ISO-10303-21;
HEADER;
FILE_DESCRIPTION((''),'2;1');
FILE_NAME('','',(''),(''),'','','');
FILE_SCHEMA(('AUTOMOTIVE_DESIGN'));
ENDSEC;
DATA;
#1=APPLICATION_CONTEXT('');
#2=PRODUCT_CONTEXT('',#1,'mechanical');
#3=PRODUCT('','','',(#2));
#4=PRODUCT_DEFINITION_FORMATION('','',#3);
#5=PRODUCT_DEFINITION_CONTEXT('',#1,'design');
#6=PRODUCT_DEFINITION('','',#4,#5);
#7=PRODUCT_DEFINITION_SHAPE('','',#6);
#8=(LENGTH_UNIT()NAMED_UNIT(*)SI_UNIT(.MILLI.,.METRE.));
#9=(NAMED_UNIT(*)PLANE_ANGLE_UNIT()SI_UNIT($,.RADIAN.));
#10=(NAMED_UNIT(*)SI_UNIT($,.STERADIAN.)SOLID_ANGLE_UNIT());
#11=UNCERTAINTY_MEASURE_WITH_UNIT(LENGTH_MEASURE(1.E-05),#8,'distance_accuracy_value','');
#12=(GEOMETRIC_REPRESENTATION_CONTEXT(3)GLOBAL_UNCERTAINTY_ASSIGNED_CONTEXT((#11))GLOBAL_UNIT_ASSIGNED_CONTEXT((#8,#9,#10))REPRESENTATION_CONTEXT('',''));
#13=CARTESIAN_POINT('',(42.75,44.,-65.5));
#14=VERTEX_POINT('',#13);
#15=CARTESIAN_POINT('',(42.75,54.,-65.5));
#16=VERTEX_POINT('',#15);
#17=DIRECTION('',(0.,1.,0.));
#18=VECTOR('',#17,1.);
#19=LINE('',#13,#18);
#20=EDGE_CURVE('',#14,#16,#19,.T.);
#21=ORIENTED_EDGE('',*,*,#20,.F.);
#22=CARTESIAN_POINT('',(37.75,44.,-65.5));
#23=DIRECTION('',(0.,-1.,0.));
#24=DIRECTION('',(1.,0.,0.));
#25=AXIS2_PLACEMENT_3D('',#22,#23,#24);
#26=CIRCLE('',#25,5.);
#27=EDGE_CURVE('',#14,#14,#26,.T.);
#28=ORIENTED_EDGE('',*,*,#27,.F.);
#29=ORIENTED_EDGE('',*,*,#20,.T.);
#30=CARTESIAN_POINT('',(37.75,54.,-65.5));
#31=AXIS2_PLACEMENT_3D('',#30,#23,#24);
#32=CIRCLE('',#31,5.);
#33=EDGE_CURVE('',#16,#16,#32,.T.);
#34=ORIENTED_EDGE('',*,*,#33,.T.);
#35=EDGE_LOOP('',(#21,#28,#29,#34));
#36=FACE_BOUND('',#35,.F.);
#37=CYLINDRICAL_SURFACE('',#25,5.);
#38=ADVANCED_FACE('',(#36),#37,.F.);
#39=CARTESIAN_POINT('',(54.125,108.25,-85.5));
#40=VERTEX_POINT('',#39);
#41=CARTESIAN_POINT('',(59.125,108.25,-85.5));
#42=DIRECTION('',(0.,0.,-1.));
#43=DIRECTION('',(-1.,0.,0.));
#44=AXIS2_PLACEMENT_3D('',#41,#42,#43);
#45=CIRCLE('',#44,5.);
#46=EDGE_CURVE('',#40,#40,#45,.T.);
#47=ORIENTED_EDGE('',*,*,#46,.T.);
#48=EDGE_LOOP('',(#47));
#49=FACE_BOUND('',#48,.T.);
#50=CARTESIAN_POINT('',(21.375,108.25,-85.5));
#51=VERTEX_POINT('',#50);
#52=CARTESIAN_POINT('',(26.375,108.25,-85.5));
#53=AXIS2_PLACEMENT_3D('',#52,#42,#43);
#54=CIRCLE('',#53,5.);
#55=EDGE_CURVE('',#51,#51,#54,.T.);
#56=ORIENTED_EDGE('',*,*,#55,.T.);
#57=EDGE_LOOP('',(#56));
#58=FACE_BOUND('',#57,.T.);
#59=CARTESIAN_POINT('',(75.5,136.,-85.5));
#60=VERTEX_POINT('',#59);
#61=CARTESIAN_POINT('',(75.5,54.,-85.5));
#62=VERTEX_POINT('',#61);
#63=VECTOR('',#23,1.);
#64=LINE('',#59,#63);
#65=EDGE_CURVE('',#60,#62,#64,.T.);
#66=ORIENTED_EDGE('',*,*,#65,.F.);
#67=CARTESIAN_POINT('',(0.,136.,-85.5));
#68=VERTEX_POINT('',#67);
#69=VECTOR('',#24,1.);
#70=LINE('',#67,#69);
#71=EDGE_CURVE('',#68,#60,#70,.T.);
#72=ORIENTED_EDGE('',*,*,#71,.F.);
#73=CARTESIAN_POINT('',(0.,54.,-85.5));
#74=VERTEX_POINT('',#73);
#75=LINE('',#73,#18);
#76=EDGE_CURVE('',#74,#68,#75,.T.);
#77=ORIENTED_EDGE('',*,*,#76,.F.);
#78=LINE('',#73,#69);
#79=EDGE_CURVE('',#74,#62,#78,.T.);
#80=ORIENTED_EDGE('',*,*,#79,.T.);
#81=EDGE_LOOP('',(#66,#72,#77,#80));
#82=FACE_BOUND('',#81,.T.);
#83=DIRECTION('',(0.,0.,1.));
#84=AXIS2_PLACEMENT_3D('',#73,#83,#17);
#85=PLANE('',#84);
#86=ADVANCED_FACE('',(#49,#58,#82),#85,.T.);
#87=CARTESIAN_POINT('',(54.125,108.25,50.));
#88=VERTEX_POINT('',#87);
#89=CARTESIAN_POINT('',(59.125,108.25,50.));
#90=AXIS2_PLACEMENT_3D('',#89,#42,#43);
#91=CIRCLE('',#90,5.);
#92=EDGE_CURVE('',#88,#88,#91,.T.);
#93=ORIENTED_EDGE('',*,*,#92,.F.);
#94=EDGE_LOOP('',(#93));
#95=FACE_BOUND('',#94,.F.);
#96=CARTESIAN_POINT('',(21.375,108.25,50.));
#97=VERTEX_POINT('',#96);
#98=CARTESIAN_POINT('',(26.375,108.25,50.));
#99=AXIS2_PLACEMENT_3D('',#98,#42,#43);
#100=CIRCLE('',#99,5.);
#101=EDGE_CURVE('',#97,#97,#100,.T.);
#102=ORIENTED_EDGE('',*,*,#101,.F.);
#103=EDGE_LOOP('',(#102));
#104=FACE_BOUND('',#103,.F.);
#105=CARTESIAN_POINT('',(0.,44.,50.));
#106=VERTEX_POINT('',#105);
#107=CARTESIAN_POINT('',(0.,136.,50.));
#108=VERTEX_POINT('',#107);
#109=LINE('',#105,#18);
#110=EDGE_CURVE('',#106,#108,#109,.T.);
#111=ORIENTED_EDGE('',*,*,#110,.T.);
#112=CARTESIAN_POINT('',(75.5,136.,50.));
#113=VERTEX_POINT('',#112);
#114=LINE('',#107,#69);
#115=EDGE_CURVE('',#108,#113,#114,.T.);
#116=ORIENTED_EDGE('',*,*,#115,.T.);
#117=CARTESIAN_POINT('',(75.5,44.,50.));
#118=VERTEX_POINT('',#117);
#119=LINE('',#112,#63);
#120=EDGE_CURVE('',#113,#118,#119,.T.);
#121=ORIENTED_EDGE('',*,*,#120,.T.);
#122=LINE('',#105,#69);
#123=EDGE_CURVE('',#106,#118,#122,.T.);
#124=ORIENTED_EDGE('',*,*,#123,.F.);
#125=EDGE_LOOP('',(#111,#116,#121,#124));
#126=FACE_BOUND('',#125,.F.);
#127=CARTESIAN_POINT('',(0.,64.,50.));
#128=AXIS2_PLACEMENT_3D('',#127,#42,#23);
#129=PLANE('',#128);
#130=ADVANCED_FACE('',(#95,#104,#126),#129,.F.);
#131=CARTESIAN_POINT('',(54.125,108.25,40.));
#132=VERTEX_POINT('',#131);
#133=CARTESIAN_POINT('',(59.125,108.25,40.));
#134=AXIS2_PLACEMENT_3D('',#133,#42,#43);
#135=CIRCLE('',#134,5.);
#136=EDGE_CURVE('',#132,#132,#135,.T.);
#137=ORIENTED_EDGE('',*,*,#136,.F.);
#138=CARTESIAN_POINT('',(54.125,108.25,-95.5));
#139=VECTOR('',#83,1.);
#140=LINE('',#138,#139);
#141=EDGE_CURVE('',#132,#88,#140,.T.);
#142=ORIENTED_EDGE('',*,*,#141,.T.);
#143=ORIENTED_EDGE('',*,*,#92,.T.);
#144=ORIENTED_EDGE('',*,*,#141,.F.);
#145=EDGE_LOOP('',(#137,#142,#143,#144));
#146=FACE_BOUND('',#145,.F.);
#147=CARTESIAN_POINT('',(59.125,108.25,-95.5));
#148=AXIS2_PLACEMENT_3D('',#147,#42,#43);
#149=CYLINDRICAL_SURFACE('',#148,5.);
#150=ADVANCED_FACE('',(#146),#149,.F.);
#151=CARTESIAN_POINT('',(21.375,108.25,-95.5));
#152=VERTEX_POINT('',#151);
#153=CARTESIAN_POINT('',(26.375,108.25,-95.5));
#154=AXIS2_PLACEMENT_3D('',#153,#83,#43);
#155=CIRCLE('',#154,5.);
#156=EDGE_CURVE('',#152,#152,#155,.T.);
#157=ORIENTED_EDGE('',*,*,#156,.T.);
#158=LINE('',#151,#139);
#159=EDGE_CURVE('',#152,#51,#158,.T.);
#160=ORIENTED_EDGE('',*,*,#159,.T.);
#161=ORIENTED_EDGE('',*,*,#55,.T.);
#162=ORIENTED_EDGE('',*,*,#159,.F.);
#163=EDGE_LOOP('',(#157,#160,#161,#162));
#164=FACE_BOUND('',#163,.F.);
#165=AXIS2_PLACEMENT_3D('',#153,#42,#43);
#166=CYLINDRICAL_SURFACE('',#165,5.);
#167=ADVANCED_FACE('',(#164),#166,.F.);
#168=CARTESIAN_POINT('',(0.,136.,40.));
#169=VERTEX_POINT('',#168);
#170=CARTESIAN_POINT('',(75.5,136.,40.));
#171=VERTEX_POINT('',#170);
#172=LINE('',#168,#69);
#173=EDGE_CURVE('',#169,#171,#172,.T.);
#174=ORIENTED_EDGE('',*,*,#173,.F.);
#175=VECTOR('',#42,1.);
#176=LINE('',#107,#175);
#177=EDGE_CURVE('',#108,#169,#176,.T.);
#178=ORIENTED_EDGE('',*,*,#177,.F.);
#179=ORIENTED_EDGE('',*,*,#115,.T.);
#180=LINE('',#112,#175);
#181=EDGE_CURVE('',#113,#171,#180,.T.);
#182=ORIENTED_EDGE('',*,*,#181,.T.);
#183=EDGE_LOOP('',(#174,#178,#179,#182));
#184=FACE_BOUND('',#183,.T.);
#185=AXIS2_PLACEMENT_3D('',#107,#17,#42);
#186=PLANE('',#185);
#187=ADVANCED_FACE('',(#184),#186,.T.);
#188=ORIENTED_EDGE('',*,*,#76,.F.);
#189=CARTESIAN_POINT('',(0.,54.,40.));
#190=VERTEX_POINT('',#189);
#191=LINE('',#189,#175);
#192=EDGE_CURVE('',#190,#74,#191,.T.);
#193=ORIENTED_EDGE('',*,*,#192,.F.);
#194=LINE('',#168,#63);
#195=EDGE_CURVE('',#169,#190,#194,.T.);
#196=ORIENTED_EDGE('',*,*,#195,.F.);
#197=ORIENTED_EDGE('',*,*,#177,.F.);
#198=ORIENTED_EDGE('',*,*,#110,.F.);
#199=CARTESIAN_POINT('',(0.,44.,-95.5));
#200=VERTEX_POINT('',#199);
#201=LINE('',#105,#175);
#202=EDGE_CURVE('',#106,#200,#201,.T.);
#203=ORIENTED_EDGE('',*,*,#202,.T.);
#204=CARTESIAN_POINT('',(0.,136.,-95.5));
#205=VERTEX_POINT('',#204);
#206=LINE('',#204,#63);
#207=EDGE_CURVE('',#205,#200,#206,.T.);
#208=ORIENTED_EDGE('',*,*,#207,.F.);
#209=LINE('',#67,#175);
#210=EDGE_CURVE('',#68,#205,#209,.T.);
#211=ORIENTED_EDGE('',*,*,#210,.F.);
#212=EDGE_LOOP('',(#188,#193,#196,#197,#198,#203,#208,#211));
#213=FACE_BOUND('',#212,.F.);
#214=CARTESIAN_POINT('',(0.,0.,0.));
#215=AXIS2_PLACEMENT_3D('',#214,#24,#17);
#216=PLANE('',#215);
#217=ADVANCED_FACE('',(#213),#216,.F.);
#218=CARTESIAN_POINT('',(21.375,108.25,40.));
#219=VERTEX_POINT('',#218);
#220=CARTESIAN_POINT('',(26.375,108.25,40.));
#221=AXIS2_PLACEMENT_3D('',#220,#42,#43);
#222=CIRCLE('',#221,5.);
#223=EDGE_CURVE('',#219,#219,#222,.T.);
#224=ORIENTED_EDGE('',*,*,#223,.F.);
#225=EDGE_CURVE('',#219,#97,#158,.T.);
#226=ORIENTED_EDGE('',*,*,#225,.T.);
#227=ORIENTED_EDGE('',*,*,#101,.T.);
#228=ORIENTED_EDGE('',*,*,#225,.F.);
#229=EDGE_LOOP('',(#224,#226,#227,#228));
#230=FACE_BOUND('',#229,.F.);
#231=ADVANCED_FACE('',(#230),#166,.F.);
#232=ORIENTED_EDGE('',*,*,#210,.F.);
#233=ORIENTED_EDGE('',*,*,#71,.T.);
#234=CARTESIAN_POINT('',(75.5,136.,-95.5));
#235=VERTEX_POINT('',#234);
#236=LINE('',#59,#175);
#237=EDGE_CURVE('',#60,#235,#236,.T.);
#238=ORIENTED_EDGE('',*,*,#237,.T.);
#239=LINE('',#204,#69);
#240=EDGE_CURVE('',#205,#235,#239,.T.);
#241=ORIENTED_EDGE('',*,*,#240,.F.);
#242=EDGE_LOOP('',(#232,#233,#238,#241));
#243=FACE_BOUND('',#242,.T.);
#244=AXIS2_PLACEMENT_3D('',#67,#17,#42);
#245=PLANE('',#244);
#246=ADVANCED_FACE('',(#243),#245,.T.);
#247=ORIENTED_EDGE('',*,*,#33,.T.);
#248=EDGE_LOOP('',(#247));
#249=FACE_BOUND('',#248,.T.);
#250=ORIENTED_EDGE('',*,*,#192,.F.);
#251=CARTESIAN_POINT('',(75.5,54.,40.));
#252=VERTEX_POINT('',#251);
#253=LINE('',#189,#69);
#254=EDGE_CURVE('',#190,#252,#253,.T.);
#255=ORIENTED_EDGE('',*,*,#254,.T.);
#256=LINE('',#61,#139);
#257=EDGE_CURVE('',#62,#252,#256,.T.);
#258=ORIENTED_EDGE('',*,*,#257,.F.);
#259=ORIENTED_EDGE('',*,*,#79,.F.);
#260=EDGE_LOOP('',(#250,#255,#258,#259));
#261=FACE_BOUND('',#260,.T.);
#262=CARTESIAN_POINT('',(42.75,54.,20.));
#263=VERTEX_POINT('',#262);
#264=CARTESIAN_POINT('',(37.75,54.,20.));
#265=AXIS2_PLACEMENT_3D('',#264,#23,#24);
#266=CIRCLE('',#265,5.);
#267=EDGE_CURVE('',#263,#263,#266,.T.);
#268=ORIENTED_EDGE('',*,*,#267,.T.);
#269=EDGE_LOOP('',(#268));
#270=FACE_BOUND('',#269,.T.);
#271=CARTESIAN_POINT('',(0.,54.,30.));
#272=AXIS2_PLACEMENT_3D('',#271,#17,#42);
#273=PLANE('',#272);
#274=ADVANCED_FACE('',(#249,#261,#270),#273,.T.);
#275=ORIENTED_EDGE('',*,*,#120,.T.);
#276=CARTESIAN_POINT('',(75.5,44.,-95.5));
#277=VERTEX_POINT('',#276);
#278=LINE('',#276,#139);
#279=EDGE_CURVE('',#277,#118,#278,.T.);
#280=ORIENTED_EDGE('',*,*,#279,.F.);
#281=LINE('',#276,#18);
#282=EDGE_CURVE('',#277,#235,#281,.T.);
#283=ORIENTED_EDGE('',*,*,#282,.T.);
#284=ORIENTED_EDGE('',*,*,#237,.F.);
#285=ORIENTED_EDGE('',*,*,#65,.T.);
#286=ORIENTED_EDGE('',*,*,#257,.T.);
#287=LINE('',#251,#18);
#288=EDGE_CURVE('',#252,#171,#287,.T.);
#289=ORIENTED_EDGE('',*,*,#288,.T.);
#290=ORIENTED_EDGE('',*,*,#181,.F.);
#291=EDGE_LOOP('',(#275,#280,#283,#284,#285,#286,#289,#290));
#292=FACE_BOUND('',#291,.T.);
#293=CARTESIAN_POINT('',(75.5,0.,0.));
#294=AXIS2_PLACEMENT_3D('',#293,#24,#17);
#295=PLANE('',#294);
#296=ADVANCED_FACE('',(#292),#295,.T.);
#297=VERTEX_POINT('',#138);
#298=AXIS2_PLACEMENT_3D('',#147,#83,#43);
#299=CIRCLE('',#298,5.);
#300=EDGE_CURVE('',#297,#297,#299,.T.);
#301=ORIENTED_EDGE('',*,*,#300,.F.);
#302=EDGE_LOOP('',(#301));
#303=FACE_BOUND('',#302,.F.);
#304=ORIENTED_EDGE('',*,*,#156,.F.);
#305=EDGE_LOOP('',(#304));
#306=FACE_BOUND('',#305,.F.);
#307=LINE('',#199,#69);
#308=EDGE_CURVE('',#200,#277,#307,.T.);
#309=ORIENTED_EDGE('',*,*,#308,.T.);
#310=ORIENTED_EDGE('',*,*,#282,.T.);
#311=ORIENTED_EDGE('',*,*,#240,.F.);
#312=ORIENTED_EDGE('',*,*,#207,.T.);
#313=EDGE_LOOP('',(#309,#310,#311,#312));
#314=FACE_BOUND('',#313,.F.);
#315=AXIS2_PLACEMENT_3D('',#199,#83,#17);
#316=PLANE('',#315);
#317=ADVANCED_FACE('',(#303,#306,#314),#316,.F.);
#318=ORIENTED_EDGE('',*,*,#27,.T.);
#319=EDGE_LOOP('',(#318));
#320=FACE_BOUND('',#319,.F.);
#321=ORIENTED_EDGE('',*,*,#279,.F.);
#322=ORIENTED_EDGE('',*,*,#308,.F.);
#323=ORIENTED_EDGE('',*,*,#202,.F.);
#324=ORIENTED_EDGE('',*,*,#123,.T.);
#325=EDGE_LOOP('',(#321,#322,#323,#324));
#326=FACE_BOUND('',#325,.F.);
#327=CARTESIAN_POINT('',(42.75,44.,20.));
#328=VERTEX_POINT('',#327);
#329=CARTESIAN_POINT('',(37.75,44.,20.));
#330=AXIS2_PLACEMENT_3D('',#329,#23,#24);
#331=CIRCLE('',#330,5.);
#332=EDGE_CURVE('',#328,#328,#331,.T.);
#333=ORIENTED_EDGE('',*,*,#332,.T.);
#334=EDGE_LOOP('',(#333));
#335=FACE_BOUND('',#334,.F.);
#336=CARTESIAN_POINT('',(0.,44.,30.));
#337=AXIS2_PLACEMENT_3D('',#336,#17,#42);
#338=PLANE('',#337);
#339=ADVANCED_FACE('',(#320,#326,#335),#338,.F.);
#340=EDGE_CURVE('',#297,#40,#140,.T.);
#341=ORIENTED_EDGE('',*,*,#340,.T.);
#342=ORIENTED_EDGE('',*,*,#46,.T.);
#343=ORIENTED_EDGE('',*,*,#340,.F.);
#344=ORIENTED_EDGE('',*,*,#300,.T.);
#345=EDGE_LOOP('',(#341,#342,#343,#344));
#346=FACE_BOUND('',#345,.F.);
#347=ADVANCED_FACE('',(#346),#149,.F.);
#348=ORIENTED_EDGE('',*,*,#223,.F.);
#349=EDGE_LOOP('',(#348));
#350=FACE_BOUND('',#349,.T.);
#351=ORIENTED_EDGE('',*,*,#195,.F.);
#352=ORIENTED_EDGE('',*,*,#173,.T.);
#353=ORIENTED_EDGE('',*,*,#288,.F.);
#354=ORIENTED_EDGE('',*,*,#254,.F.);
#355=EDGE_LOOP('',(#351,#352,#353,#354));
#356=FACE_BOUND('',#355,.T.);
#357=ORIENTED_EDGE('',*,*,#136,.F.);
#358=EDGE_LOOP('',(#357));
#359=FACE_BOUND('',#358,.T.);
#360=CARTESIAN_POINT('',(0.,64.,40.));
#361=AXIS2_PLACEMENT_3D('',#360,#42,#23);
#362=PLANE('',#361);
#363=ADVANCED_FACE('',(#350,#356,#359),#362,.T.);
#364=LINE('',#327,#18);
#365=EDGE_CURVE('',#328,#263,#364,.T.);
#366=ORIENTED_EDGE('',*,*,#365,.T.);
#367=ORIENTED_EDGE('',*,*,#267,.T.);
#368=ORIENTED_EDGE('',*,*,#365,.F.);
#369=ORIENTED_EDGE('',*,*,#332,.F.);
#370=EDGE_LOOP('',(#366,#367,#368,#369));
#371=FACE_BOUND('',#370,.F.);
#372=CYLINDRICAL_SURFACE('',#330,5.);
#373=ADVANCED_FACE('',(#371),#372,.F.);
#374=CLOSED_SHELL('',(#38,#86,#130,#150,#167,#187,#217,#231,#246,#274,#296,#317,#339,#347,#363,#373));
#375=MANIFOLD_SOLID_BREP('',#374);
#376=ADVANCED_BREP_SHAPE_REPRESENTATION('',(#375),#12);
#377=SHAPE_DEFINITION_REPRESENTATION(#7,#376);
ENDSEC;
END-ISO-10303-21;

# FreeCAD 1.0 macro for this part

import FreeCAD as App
import Part
import Sketcher

V = App.Vector

doc = App.newDocument("Part")
body = doc.addObject("PartDesign::Body", "Body")

# Sketch on YZ plane
sketch1 = body.newObject("Sketcher::SketchObject", "Sketch")
sketch1.AttachmentSupport = (doc.getObject("YZ_Plane"), [""])
sketch1.MapMode = "FlatFace"
sketch1.addGeometry([
    Part.LineSegment(V(44, -96, 0), V(136, -96, 0)),  # 0
    Part.LineSegment(V(136, -96, 0), V(136, -86, 0)),  # 1
    Part.LineSegment(V(136, -86, 0), V(54, -86, 0)),  # 2
    Part.LineSegment(V(54, -86, 0), V(54, 40, 0)),  # 3
    Part.LineSegment(V(54, 40, 0), V(136, 40, 0)),  # 4
    Part.LineSegment(V(136, 40, 0), V(136, 50, 0)),  # 5
    Part.LineSegment(V(136, 50, 0), V(44, 50, 0)),  # 6
    Part.LineSegment(V(44, 50, 0), V(44, -96, 0)),  # 7
], False)
sketch1.addConstraint([
    Sketcher.Constraint("Coincident", 0, 2, 1, 1),
    Sketcher.Constraint("Coincident", 1, 2, 2, 1),
    Sketcher.Constraint("Coincident", 2, 2, 3, 1),
    Sketcher.Constraint("Coincident", 3, 2, 4, 1),
    Sketcher.Constraint("Coincident", 4, 2, 5, 1),
    Sketcher.Constraint("Coincident", 5, 2, 6, 1),
    Sketcher.Constraint("Coincident", 6, 2, 7, 1),
    Sketcher.Constraint("Coincident", 7, 2, 0, 1),
    Sketcher.Constraint("Horizontal", 0),
    Sketcher.Constraint("Vertical", 1),
    Sketcher.Constraint("Horizontal", 2),
    Sketcher.Constraint("Vertical", 3),
    Sketcher.Constraint("Horizontal", 4),
    Sketcher.Constraint("Vertical", 5),
    Sketcher.Constraint("Horizontal", 6),
    Sketcher.Constraint("Vertical", 7),
    Sketcher.Constraint("Vertical", 1, 2, 4, 2),
    Sketcher.Constraint("Equal", 1, 5),
    Sketcher.Constraint("DistanceY", 1, 1, 1, 2, 10.0),
    Sketcher.Constraint("DistanceX", 6, 2, 3, 2, 10.0),
    Sketcher.Constraint("DistanceX", 0, 1, 0, 2, 92.0),
    Sketcher.Constraint("DistanceY", 3, 1, 3, 2, 125.5),
    Sketcher.Constraint("DistanceX", -1, 1, 0, 2, 136.0),
    Sketcher.Constraint("DistanceY", -1, 1, 3, 2, 40.0),
])
pad1 = body.newObject("PartDesign::Pad", "Pad")
pad1.Profile = sketch1
pad1.Length = 75.5

# Sketch on XZ plane
sketch2 = body.newObject("Sketcher::SketchObject", "Sketch001")
sketch2.AttachmentSupport = (doc.getObject("XZ_Plane"), [""])
sketch2.MapMode = "FlatFace"
sketch2.AttachmentOffset = App.Placement(V(0, 0, -44), App.Rotation())
sketch2.addGeometry([
    Part.Circle(V(38, -66, 0), V(0, 0, 1), 5),
    Part.Circle(V(38, 20, 0), V(0, 0, 1), 5),
], False)
sketch2.addConstraint([
    Sketcher.Constraint("Equal", 0, 1),
    Sketcher.Constraint("Vertical", 0, 3, 1, 3),
    Sketcher.Constraint("Diameter", 0, 10.0),
    Sketcher.Constraint("DistanceY", -1, 1, 1, 3, 20.0),
    Sketcher.Constraint("DistanceY", 0, 3, -1, 1, 65.5),
    Sketcher.Constraint("DistanceX", -1, 1, 0, 3, 37.75),
])
pocket1 = body.newObject("PartDesign::Pocket", "Pocket")
pocket1.Profile = sketch2
pocket1.Length = 75.5

# Sketch on XY plane
sketch3 = body.newObject("Sketcher::SketchObject", "Sketch002")
sketch3.AttachmentSupport = (doc.getObject("XY_Plane"), [""])
sketch3.MapMode = "FlatFace"
sketch3.AttachmentOffset = App.Placement(V(0, 0, -95.5), App.Rotation())
sketch3.addGeometry([
    Part.Circle(V(26, 108, 0), V(0, 0, 1), 5),
    Part.Circle(V(59, 108, 0), V(0, 0, 1), 5),
], False)
sketch3.addConstraint([
    Sketcher.Constraint("Equal", 0, 1),
    Sketcher.Constraint("Horizontal", 0, 3, 1, 3),
    Sketcher.Constraint("Diameter", 0, 10.0),
    Sketcher.Constraint("DistanceY", -1, 1, 0, 3, 108.25),
    Sketcher.Constraint("DistanceX", 0, 3, 1, 3, 32.75),
    Sketcher.Constraint("DistanceX", -1, 1, 0, 3, 26.375),
])
pocket2 = body.newObject("PartDesign::Pocket", "Pocket001")
pocket2.Profile = sketch3
pocket2.Type = "ThroughAll"
pocket2.Reversed = True

doc.recompute()
